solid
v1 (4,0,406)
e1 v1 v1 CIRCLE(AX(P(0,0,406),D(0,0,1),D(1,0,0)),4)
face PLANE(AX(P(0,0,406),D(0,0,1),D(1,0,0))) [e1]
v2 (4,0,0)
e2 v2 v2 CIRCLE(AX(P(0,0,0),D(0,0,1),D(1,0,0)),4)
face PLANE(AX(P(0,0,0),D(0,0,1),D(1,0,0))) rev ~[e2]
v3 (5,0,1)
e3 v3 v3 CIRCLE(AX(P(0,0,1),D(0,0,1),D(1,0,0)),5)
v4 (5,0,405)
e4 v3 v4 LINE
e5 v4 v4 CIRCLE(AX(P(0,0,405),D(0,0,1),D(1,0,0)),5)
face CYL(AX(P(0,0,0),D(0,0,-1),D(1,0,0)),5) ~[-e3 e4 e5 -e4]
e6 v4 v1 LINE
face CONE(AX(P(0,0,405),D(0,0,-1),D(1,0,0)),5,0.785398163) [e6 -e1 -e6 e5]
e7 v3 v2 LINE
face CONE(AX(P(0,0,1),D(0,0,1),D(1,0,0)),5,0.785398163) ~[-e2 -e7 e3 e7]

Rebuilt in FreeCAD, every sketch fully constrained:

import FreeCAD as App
import Part
import Sketcher
from FreeCAD import Vector
Q = App.Units.Quantity


def edges_at(feature, points):
    """Names of the edges that pass closest to the given points."""
    edges = feature.Shape.Edges
    near = lambda p: min(range(len(edges)), key=lambda i: edges[i].distToShape(Part.Vertex(*p))[0])
    return sorted({f"Edge{near(p) + 1}" for p in points})

doc = App.newDocument("Part")
body = doc.addObject("PartDesign::Body", "Body")

# Sketch on XY plane
sketch1 = body.newObject("Sketcher::SketchObject", "Sketch")
sketch1.AttachmentSupport = (doc.getObject("XY_Plane"), [""])
sketch1.MapMode = "FlatFace"
sketch1.addGeometry(Part.Circle(Vector(0, 0, 0), Vector(0, 0, 1), 5), False)
sketch1.addConstraint([
    Sketcher.Constraint("Coincident", 0, 3, -1, 1),
    Sketcher.Constraint("Diameter", 0, Q("10 mm")),
])
pad1 = body.newObject("PartDesign::Pad", "Pad")
pad1.Profile = sketch1
pad1.Length = 406
doc.recompute()

chamfer = body.newObject("PartDesign::Chamfer", "Chamfer")
chamfer.Base = (pad1, edges_at(pad1, [(-5, 0, 406), (-5, 0, 0)]))
chamfer.Size = 1

doc.recompute()
